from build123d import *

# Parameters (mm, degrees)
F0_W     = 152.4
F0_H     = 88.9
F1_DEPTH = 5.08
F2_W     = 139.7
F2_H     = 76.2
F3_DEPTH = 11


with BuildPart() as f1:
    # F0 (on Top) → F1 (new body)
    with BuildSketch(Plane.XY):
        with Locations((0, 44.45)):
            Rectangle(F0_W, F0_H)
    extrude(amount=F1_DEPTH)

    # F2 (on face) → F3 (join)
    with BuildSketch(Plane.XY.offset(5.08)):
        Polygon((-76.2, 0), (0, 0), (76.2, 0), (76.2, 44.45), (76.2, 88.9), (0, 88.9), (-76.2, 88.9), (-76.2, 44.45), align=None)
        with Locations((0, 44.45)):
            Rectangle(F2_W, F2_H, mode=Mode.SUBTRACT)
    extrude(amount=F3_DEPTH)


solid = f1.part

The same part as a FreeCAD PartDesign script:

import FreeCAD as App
import Part
import Sketcher
Q = App.Units.Quantity

doc = App.newDocument("Part")
params = doc.addObject("Spreadsheet::Sheet", "Params")
for row, (alias, value) in enumerate([
    ("sketch1_width", "6 in"),
    ("sketch1_height", "3.5 in"),
    ("pad1_length", "0.2 in"),
    ("sketch2_width", "6 in"),
    ("sketch2_height", "3 in"),
    ("sketch2_width2", "5.5 in"),
    ("sketch2_height2", "3.5 in"),
    ("pad2_length", "11 mm"),
], start=1):
    params.set(f"A{row}", alias)
    params.set(f"B{row}", "=" + value)
    params.setAlias(f"B{row}", alias)

body = doc.addObject("PartDesign::Body", "Body")

sketch1 = body.newObject("Sketcher::SketchObject", "Sketch")
sketch1.AttachmentSupport = (doc.getObject("XY_Plane"), [""])
sketch1.MapMode = "FlatFace"
sketch1.addGeometry([
    Part.LineSegment(App.Vector(-76, 89, 0), App.Vector(-76, 0, 0)),
    Part.LineSegment(App.Vector(-76, 0, 0), App.Vector(76, 0, 0)),
    Part.LineSegment(App.Vector(76, 0, 0), App.Vector(76, 89, 0)),
    Part.LineSegment(App.Vector(76, 89, 0), App.Vector(-76, 89, 0)),
], False)
sketch1.addConstraint([
    Sketcher.Constraint("Coincident", 0, 2, 1, 1),
    Sketcher.Constraint("Coincident", 1, 2, 2, 1),
    Sketcher.Constraint("Coincident", 2, 2, 3, 1),
    Sketcher.Constraint("Coincident", 3, 2, 0, 1),
    Sketcher.Constraint("Vertical", 0),
    Sketcher.Constraint("Horizontal", 1),
    Sketcher.Constraint("Vertical", 2),
    Sketcher.Constraint("Horizontal", 3),
    Sketcher.Constraint("Symmetric", 0, 2, 1, 2, -1, 1),
    Sketcher.Constraint("DistanceX", 1, 1, 1, 2, Q("6 in")),
    Sketcher.Constraint("DistanceY", 0, 2, 0, 1, Q("3.5 in")),
])
sketch1.setExpression("Constraints[9]", "Params.sketch1_width")
sketch1.setExpression("Constraints[10]", "Params.sketch1_height")
pad1 = body.newObject("PartDesign::Pad", "Pad")
pad1.Profile = sketch1
pad1.setExpression("Length", "Params.pad1_length")

sketch2 = body.newObject("Sketcher::SketchObject", "Sketch001")
sketch2.AttachmentSupport = (doc.getObject("XY_Plane"), [""])
sketch2.MapMode = "FlatFace"
sketch2.AttachmentOffset = App.Placement(App.Vector(0, 0, 0.2 * 25.4), App.Rotation())
sketch2.addGeometry([
    Part.LineSegment(App.Vector(-76, 0, 0), App.Vector(76, 0, 0)),
    Part.LineSegment(App.Vector(76, 0, 0), App.Vector(76, 89, 0)),
    Part.LineSegment(App.Vector(76, 89, 0), App.Vector(-76, 89, 0)),
    Part.LineSegment(App.Vector(-76, 89, 0), App.Vector(-76, 0, 0)),
    Part.LineSegment(App.Vector(70, 6, 0), App.Vector(-70, 6, 0)),
    Part.LineSegment(App.Vector(-70, 6, 0), App.Vector(-70, 83, 0)),
    Part.LineSegment(App.Vector(-70, 83, 0), App.Vector(70, 83, 0)),
    Part.LineSegment(App.Vector(70, 83, 0), App.Vector(70, 6, 0)),
], False)
sketch2.addConstraint([
    Sketcher.Constraint("Coincident", 0, 2, 1, 1),
    Sketcher.Constraint("Coincident", 1, 2, 2, 1),
    Sketcher.Constraint("Coincident", 2, 2, 3, 1),
    Sketcher.Constraint("Coincident", 3, 2, 0, 1),
    Sketcher.Constraint("Coincident", 4, 2, 5, 1),
    Sketcher.Constraint("Coincident", 5, 2, 6, 1),
    Sketcher.Constraint("Coincident", 6, 2, 7, 1),
    Sketcher.Constraint("Coincident", 7, 2, 4, 1),
    Sketcher.Constraint("Horizontal", 0),
    Sketcher.Constraint("Vertical", 1),
    Sketcher.Constraint("Horizontal", 2),
    Sketcher.Constraint("Vertical", 3),
    Sketcher.Constraint("Horizontal", 4),
    Sketcher.Constraint("Vertical", 5),
    Sketcher.Constraint("Horizontal", 6),
    Sketcher.Constraint("Vertical", 7),
    Sketcher.Constraint("Symmetric", 0, 2, 3, 2, -1, 1),
    Sketcher.Constraint("DistanceX", 0, 1, 0, 2, Q("6 in")),
    Sketcher.Constraint("DistanceY", 5, 1, 5, 2, Q("3 in")),
    Sketcher.Constraint("DistanceX", 4, 2, 4, 1, Q("5.5 in")),
    Sketcher.Constraint("DistanceY", 1, 1, 1, 2, Q("3.5 in")),
    Sketcher.Constraint("DistanceX", 4, 2, -1, 1, Q("2.75 in")),
    Sketcher.Constraint("DistanceY", -1, 1, 4, 2, Q("0.25 in")),
])
sketch2.setExpression("Constraints[17]", "Params.sketch2_width")
sketch2.setExpression("Constraints[18]", "Params.sketch2_height")
sketch2.setExpression("Constraints[19]", "Params.sketch2_width2")
sketch2.setExpression("Constraints[20]", "Params.sketch2_height2")
pad2 = body.newObject("PartDesign::Pad", "Pad001")
pad2.Profile = sketch2
pad2.setExpression("Length", "Params.pad2_length")

doc.recompute()
